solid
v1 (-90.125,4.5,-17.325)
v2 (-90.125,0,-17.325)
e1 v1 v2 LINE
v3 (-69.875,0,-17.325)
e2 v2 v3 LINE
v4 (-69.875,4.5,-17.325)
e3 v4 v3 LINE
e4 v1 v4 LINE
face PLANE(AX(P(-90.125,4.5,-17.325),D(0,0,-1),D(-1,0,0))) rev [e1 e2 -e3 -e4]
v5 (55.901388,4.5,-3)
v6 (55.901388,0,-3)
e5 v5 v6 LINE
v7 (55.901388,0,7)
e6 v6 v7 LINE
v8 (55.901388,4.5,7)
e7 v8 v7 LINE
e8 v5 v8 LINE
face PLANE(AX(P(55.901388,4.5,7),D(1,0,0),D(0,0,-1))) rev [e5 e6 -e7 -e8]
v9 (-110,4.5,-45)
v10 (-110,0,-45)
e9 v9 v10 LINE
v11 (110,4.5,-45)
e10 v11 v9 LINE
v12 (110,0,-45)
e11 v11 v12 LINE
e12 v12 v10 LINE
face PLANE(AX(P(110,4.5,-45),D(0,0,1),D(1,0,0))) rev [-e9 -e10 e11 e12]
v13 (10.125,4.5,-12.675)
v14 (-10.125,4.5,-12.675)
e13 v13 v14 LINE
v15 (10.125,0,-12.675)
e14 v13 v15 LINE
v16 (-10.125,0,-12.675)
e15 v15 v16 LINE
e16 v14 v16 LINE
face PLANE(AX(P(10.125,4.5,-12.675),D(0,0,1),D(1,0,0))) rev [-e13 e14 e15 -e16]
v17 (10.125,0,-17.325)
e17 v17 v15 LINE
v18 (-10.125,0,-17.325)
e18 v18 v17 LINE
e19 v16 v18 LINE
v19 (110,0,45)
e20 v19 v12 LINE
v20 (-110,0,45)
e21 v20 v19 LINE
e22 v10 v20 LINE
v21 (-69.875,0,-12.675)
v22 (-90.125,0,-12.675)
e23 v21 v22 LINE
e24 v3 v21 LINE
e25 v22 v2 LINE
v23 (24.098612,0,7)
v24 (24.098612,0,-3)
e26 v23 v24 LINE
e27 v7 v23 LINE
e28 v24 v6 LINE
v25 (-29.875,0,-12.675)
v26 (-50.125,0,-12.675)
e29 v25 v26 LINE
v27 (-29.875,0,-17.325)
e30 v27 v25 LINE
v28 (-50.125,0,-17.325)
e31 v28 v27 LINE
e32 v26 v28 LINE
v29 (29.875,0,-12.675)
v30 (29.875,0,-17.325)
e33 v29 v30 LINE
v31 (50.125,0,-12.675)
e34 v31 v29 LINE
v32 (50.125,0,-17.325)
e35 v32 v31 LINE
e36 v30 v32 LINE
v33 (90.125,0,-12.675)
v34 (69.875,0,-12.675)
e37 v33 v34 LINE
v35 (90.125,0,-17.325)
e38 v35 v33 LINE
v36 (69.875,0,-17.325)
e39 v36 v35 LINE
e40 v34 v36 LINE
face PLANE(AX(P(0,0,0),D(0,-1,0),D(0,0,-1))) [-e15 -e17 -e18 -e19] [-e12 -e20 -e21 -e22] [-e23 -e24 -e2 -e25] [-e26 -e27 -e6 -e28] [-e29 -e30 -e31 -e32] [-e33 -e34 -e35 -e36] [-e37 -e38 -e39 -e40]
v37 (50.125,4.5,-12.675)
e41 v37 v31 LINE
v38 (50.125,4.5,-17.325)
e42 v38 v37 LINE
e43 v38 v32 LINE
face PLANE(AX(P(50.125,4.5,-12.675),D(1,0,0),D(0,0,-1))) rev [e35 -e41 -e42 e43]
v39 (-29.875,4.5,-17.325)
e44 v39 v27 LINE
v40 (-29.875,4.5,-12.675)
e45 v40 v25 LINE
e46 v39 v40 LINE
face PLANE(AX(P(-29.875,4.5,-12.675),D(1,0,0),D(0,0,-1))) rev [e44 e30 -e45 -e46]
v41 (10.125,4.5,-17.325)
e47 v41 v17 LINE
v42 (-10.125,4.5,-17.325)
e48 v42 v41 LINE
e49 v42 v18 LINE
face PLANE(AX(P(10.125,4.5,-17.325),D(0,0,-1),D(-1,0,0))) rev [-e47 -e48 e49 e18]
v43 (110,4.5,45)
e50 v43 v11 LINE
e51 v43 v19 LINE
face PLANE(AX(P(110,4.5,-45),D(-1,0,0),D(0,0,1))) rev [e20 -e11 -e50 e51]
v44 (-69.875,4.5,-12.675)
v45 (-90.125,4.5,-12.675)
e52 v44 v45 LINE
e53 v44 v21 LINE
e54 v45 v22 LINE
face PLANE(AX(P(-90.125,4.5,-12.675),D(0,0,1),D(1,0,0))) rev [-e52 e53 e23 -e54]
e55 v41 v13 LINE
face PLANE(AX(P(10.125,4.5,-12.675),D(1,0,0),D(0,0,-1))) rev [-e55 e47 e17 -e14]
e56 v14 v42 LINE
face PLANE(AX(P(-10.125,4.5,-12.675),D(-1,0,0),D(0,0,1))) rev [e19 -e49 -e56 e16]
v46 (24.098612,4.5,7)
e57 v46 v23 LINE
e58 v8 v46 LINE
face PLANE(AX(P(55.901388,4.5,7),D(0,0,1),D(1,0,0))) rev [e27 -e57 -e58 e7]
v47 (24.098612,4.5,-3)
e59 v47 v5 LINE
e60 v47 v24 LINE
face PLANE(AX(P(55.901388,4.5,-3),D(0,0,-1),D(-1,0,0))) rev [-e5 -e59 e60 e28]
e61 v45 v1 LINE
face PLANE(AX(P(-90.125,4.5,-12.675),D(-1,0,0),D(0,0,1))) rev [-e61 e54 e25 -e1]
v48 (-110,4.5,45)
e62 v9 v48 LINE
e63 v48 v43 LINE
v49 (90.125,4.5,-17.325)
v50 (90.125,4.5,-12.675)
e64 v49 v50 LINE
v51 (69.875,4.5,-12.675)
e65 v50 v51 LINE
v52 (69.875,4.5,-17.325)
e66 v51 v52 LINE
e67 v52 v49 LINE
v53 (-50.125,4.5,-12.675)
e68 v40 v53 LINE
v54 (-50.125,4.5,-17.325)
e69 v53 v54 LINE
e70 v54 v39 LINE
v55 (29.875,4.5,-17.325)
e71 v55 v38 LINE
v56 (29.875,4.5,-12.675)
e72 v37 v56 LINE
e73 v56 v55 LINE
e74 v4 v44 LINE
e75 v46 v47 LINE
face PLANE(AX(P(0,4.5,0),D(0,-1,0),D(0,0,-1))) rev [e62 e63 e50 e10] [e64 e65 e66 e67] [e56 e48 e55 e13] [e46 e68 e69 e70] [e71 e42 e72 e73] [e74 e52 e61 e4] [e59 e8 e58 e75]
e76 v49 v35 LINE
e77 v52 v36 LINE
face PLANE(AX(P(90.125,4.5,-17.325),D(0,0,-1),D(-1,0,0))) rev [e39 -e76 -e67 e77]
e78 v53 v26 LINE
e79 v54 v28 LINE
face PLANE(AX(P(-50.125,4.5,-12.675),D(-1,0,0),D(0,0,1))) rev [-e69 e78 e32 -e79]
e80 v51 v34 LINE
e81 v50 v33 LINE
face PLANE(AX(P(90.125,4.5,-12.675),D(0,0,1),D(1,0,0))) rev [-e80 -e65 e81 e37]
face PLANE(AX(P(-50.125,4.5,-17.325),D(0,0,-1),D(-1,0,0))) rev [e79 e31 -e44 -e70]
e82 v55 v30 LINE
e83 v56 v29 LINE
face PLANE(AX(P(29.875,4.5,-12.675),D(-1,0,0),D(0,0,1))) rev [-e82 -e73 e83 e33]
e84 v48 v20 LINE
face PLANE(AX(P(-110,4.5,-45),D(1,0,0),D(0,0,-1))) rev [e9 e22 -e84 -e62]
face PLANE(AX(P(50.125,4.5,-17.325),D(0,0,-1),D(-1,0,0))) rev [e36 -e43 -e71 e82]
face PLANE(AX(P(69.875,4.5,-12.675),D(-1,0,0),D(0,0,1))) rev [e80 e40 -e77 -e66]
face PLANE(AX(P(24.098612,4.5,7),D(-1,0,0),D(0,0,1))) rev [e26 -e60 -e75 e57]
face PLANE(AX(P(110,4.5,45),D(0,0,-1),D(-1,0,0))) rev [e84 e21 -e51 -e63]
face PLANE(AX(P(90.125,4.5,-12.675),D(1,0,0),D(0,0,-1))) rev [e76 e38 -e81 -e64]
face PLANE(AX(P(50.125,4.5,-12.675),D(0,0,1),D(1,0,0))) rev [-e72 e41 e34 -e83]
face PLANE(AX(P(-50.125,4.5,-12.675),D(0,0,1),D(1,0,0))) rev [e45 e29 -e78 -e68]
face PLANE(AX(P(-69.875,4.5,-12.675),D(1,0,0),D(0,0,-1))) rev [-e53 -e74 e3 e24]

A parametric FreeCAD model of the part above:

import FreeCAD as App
import Part
import Sketcher
from FreeCAD import Vector


def add_polygon(sketch, points):
    """Adds a closed chain of lines whose ends are joined by coincident constraints."""
    first, n = sketch.GeometryCount, len(points)
    for a, b in zip(points, points[1:] + points[:1]):
        sketch.addGeometry(Part.LineSegment(App.Vector(*a, 0), App.Vector(*b, 0)), False)
    for i in range(n):
        sketch.addConstraint(Sketcher.Constraint("Coincident", first + i, 2, first + (i + 1) % n, 1))

doc = App.newDocument("Part")
params = doc.addObject("Spreadsheet::Sheet", "Params")
for row, (alias, value) in enumerate([
    ("sketch1_width", "220 mm"),
    ("sketch1_height", "90 mm"),
    ("pad1_length", "4.5 mm"),
    ("sketch2_width", "20.25 mm"),
    ("sketch2_height", "4.65 mm"),
    ("sketch3_height", "10 mm"),
], start=1):
    params.set(f"A{row}", alias)
    params.set(f"B{row}", "=" + value)
    params.setAlias(f"B{row}", alias)

body = doc.addObject("PartDesign::Body", "Body")

# Sketch on XZ plane
sketch1 = body.newObject("Sketcher::SketchObject", "Sketch")
sketch1.AttachmentSupport = (doc.getObject("XZ_Plane"), [""])
sketch1.MapMode = "FlatFace"
add_polygon(sketch1, [(-110, -45), (-110, 45), (110, 45), (110, -45)])  # lines 0-3
sketch1.addConstraint([
    Sketcher.Constraint("Vertical", 0),
    Sketcher.Constraint("Horizontal", 1),
    Sketcher.Constraint("Vertical", 2),
    Sketcher.Constraint("Horizontal", 3),
    Sketcher.Constraint("Symmetric", 0, 2, 2, 2, -1, 1),
    Sketcher.Constraint("DistanceX", 1, 1, 1, 2, 220.0),
    Sketcher.Constraint("DistanceY", 0, 1, 0, 2, 90.0),
])
sketch1.setExpression("Constraints[9]", "Params.sketch1_width")
sketch1.setExpression("Constraints[10]", "Params.sketch1_height")
pad1 = body.newObject("PartDesign::Pad", "Pad")
pad1.Profile = sketch1
pad1.setExpression("Length", "Params.pad1_length")
pad1.Reversed = True

# Sketch on XZ plane
sketch2 = body.newObject("Sketcher::SketchObject", "Sketch001")
sketch2.AttachmentSupport = (doc.getObject("XZ_Plane"), [""])
sketch2.MapMode = "FlatFace"
add_polygon(sketch2, [(29.9, -12.7), (29.9, -17.3), (50.1, -17.3), (50.1, -12.7)])  # lines 0-3
add_polygon(sketch2, [(-10.1, -12.7), (-10.1, -17.3), (10.1, -17.3), (10.1, -12.7)])  # lines 4-7
add_polygon(sketch2, [(69.9, -12.7), (69.9, -17.3), (90.1, -17.3), (90.1, -12.7)])  # lines 8-11
add_polygon(sketch2, [(-90.1, -12.7), (-90.1, -17.3), (-69.9, -17.3), (-69.9, -12.7)])  # lines 12-15
add_polygon(sketch2, [(-50.1, -12.7), (-50.1, -17.3), (-29.9, -17.3), (-29.9, -12.7)])  # lines 16-19
sketch2.addConstraint([
    Sketcher.Constraint("Vertical", 0),
    Sketcher.Constraint("Horizontal", 1),
    Sketcher.Constraint("Vertical", 2),
    Sketcher.Constraint("Horizontal", 3),
    Sketcher.Constraint("Vertical", 4),
    Sketcher.Constraint("Horizontal", 5),
    Sketcher.Constraint("Vertical", 6),
    Sketcher.Constraint("Horizontal", 7),
    Sketcher.Constraint("Vertical", 8),
    Sketcher.Constraint("Horizontal", 9),
    Sketcher.Constraint("Vertical", 10),
    Sketcher.Constraint("Horizontal", 11),
    Sketcher.Constraint("Vertical", 12),
    Sketcher.Constraint("Horizontal", 13),
    Sketcher.Constraint("Vertical", 14),
    Sketcher.Constraint("Horizontal", 15),
    Sketcher.Constraint("Vertical", 16),
    Sketcher.Constraint("Horizontal", 17),
    Sketcher.Constraint("Vertical", 18),
    Sketcher.Constraint("Horizontal", 19),
    Sketcher.Constraint("Symmetric", 9, 2, 12, 2, -2),
    Sketcher.Constraint("Symmetric", 11, 2, 14, 2, -2),
    Sketcher.Constraint("Symmetric", 1, 2, 16, 2, -2),
    Sketcher.Constraint("Symmetric", 3, 2, 18, 2, -2),
    Sketcher.Constraint("Horizontal", 1, 2, 4, 2),
    Sketcher.Constraint("Horizontal", 3, 2, 6, 2),
    Sketcher.Constraint("Horizontal", 5, 2, 8, 2),
    Sketcher.Constraint("Horizontal", 7, 2, 10, 2),
    Sketcher.Constraint("Equal", 3, 5),
    Sketcher.Constraint("Equal", 7, 9),
    Sketcher.Constraint("DistanceX", 4, 2, 0, 2, 40.0),
    Sketcher.Constraint("DistanceX", 0, 2, 8, 2, 40.0),
    Sketcher.Constraint("DistanceX", 12, 2, 4, 2, 80.0),
    Sketcher.Constraint("DistanceX", 1, 1, 1, 2, 20.25),
    Sketcher.Constraint("DistanceY", 0, 2, 0, 1, 4.65),
    Sketcher.Constraint("DistanceY", 0, 2, -1, 1, 17.325),
])
sketch2.setExpression("Constraints[53]", "Params.sketch2_width")
sketch2.setExpression("Constraints[54]", "Params.sketch2_height")
pocket1 = body.newObject("PartDesign::Pocket", "Pocket")
pocket1.Profile = sketch2
pocket1.Type = "ThroughAll"

# Sketch on XZ plane
sketch3 = body.newObject("Sketcher::SketchObject", "Sketch002")
sketch3.AttachmentSupport = (doc.getObject("XZ_Plane"), [""])
sketch3.MapMode = "FlatFace"
add_polygon(sketch3, [(24, 7), (24, -3), (56, -3), (56, 7)])  # lines 0-3
sketch3.addConstraint([
    Sketcher.Constraint("Vertical", 0),
    Sketcher.Constraint("Horizontal", 1),
    Sketcher.Constraint("Vertical", 2),
    Sketcher.Constraint("Horizontal", 3),
    Sketcher.Constraint("DistanceY", 0, 2, 0, 1, 10.0),
    Sketcher.Constraint("DistanceY", 0, 2, -1, 1, 3.0),
    Sketcher.Constraint("DistanceX", 1, 1, 1, 2, 31.802775),
    Sketcher.Constraint("DistanceX", -1, 1, 0, 2, 24.098612),
])
sketch3.setExpression("Constraints[8]", "Params.sketch3_height")
pocket2 = body.newObject("PartDesign::Pocket", "Pocket001")
pocket2.Profile = sketch3
pocket2.Type = "ThroughAll"

doc.recompute()
